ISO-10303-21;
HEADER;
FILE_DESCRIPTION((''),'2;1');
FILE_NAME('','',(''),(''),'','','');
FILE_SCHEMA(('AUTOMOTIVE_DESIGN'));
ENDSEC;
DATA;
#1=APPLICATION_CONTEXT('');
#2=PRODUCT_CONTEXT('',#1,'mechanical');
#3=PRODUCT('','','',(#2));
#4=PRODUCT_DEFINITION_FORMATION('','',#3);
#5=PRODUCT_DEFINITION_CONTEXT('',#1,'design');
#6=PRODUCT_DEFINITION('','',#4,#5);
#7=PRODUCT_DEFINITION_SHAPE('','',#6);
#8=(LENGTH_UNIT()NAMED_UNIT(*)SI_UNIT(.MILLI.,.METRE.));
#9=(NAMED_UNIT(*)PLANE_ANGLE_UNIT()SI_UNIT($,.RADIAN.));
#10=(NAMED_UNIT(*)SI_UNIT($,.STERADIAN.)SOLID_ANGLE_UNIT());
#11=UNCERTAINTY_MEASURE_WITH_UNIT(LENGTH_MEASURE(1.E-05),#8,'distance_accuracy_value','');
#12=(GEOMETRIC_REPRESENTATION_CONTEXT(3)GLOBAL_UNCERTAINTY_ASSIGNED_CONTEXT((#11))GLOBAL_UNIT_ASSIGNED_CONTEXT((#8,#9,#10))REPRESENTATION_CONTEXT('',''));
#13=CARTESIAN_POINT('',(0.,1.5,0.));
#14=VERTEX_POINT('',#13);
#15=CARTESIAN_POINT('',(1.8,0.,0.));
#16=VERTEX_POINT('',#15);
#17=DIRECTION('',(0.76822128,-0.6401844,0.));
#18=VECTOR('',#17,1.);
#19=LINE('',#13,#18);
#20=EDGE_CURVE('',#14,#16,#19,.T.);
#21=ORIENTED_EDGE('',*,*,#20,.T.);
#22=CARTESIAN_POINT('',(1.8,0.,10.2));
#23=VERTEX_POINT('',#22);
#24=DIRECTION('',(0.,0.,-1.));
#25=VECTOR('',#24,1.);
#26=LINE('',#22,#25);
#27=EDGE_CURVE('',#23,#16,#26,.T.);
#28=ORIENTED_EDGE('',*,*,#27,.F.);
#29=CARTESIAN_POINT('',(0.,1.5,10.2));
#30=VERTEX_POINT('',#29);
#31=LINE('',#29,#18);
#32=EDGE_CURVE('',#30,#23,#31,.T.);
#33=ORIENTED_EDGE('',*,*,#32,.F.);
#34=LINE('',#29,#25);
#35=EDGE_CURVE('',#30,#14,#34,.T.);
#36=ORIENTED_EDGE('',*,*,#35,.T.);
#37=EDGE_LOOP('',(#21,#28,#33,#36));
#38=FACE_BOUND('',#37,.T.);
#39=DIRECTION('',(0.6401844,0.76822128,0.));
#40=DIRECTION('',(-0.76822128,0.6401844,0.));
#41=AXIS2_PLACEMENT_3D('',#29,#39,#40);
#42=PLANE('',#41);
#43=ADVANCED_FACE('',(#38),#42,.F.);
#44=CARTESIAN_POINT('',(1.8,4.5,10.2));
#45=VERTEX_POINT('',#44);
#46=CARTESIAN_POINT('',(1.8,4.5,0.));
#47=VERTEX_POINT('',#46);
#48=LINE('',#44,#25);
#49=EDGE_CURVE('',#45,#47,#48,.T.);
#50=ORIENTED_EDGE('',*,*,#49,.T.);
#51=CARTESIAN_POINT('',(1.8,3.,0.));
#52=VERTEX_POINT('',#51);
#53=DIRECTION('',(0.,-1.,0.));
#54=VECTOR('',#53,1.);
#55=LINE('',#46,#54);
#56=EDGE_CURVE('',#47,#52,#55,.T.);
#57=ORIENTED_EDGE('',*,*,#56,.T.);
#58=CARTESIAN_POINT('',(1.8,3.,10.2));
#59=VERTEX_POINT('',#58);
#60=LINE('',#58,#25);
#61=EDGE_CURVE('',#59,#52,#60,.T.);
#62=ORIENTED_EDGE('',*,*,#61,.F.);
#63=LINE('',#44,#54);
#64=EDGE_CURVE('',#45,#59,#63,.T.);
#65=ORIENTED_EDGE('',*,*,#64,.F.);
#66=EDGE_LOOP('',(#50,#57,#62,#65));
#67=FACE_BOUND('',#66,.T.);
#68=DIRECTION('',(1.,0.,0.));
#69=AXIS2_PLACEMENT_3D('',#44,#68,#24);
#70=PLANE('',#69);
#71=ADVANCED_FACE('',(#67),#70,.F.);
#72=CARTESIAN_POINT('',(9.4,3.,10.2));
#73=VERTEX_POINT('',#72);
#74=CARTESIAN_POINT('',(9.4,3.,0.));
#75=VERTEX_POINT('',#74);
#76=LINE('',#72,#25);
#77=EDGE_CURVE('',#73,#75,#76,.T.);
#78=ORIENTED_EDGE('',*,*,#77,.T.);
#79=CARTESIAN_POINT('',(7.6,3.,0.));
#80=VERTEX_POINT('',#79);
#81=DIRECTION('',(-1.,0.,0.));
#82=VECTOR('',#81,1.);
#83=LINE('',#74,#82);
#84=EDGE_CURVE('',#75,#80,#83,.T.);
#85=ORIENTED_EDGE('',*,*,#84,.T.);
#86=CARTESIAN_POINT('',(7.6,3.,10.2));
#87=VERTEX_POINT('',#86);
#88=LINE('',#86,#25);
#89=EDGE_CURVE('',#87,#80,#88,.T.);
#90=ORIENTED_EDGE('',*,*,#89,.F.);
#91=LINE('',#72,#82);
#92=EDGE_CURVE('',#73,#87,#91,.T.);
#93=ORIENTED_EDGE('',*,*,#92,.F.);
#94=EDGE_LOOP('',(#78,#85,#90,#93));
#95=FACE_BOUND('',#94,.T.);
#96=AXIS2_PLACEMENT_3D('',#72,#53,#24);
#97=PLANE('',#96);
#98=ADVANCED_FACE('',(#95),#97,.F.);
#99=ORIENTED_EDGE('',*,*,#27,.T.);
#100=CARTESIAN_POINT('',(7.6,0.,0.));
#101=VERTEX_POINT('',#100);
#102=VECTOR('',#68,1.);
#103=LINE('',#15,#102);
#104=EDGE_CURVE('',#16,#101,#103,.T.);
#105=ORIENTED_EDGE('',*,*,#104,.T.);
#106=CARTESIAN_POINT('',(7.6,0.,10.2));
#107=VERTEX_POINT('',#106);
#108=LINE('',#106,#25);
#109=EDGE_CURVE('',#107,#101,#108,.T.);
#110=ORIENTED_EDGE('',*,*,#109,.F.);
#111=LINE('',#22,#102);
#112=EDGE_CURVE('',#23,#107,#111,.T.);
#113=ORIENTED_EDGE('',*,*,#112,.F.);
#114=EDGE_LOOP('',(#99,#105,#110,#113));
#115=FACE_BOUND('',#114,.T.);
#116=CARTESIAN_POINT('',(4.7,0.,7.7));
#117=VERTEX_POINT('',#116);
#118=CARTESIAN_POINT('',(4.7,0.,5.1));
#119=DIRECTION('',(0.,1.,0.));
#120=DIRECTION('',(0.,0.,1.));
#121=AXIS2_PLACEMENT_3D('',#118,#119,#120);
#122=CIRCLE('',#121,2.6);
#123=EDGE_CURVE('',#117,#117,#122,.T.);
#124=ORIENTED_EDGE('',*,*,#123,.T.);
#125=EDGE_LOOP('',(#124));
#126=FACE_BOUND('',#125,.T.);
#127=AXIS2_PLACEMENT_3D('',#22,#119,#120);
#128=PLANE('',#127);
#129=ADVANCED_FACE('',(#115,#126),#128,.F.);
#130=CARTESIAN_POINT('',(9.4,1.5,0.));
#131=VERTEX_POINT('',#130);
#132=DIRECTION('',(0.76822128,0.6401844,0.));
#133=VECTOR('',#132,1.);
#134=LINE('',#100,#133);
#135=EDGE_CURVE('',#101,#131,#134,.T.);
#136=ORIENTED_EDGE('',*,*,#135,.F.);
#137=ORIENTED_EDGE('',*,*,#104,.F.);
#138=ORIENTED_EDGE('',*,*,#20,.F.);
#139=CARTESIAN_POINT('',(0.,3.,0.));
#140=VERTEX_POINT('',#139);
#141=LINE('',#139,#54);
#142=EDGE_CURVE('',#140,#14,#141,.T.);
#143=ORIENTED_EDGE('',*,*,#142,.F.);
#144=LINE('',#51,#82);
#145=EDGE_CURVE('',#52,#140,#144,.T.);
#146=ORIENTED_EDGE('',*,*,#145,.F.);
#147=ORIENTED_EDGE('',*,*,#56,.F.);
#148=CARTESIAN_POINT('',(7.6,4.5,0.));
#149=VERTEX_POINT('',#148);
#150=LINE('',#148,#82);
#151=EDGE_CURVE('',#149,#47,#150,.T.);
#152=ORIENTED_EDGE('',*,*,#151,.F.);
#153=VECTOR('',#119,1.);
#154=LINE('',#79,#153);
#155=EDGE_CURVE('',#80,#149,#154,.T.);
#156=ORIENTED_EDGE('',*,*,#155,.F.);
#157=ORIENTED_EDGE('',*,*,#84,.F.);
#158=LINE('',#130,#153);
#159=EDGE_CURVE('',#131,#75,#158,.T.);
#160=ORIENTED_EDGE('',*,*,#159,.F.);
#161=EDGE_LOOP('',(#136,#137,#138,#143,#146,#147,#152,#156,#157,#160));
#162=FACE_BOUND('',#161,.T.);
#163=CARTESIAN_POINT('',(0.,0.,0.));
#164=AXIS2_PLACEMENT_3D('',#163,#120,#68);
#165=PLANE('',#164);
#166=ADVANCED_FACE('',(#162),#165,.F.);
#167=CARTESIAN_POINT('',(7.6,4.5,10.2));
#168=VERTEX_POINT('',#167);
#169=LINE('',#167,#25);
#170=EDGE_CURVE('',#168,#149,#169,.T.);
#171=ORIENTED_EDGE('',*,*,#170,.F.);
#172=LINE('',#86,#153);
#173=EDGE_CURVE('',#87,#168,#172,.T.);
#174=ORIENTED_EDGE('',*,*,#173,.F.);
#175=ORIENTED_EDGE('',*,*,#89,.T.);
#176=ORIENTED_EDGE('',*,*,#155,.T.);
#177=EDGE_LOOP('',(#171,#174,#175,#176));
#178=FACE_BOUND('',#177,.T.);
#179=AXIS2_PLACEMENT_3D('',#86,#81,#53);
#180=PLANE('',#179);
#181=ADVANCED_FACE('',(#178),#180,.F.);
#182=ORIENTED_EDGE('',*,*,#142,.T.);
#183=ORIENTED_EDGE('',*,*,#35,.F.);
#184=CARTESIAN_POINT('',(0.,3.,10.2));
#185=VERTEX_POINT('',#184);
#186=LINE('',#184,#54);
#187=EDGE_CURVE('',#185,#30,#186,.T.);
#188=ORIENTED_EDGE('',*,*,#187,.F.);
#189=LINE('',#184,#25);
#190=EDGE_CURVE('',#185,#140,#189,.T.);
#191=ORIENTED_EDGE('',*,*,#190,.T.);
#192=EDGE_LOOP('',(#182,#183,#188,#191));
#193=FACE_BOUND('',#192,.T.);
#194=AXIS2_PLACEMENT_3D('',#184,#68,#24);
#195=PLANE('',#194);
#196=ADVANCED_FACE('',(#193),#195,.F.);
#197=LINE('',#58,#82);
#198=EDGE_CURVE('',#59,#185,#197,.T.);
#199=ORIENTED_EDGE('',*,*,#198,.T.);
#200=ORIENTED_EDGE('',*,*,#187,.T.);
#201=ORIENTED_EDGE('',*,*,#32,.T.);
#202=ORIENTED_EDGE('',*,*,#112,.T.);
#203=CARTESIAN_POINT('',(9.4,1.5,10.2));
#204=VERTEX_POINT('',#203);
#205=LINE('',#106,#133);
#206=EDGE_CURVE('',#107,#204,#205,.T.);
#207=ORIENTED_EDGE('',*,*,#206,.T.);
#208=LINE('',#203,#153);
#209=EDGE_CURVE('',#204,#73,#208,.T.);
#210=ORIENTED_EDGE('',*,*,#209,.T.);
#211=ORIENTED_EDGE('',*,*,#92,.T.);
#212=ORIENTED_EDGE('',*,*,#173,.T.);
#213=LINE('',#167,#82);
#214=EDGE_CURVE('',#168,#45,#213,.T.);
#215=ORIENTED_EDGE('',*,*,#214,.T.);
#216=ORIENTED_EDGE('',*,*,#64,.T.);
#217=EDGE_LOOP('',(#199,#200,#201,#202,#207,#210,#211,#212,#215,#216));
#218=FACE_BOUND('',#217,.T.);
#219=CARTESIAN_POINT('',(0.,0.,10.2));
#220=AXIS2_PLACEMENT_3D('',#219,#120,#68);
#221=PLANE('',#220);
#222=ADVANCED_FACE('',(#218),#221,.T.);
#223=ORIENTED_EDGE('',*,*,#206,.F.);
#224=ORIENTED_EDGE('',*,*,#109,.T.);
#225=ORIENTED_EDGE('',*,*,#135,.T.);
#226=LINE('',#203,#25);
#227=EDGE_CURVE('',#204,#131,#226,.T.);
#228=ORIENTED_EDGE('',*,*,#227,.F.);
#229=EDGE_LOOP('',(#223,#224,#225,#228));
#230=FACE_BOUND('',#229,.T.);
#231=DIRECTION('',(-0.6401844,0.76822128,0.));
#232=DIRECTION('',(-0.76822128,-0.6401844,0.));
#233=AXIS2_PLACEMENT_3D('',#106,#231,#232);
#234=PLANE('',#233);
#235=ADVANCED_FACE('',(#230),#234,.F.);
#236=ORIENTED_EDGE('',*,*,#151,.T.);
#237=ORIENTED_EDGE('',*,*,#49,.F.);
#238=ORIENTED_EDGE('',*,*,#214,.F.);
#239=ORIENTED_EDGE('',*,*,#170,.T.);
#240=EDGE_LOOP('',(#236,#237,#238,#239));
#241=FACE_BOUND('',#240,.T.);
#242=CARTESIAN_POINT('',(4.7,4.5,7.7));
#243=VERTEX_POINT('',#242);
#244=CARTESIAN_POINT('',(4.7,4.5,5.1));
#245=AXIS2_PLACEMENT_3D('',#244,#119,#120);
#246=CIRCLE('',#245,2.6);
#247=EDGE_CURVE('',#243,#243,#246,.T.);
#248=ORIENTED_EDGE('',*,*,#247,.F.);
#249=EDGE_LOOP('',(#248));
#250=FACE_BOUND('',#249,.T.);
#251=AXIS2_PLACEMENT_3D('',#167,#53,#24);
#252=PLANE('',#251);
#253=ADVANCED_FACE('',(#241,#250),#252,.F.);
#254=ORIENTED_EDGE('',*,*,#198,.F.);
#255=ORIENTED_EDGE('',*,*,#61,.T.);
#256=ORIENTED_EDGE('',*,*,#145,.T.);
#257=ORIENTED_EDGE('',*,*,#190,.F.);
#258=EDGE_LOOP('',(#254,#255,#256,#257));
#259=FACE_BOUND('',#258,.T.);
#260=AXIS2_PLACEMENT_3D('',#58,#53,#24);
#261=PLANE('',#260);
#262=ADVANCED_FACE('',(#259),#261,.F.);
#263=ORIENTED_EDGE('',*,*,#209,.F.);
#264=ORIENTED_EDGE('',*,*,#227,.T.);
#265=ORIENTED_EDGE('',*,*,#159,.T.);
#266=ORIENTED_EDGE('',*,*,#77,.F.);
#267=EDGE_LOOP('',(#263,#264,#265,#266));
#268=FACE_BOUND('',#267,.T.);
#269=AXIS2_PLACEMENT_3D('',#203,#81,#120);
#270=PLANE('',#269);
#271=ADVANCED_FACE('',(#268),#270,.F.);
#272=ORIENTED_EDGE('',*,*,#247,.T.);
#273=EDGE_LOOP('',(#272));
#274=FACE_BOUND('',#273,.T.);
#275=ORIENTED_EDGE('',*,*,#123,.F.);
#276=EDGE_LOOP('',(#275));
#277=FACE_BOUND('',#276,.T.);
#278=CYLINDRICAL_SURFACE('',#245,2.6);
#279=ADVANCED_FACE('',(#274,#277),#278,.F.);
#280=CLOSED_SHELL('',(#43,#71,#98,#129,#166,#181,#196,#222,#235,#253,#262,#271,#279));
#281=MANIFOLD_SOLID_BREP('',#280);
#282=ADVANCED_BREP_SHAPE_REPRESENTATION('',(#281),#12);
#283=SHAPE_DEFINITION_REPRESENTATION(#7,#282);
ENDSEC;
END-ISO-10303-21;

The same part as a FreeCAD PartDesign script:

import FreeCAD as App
import Part
import Sketcher
Q = App.Units.Quantity

doc = App.newDocument("Part")
body = doc.addObject("PartDesign::Body", "Body")

# Sketch on XY plane
sketch1 = body.newObject("Sketcher::SketchObject", "Sketch")
sketch1.AttachmentSupport = (doc.getObject("XY_Plane"), [""])
sketch1.MapMode = "FlatFace"
sketch1.addGeometry(Part.LineSegment(App.Vector(0, 3, 0), App.Vector(0, 1.5, 0)), False)
sketch1.addGeometry(Part.LineSegment(App.Vector(0, 1.5, 0), App.Vector(1.8, 0, 0)), False)
sketch1.addGeometry(Part.LineSegment(App.Vector(1.8, 0, 0), App.Vector(7.6, 0, 0)), False)
sketch1.addGeometry(Part.LineSegment(App.Vector(7.6, 0, 0), App.Vector(9.4, 1.5, 0)), False)
sketch1.addGeometry(Part.LineSegment(App.Vector(9.4, 1.5, 0), App.Vector(9.4, 3, 0)), False)
sketch1.addGeometry(Part.LineSegment(App.Vector(9.4, 3, 0), App.Vector(7.6, 3, 0)), False)
sketch1.addGeometry(Part.LineSegment(App.Vector(7.6, 3, 0), App.Vector(7.6, 4.5, 0)), False)
sketch1.addGeometry(Part.LineSegment(App.Vector(7.6, 4.5, 0), App.Vector(1.8, 4.5, 0)), False)
sketch1.addGeometry(Part.LineSegment(App.Vector(1.8, 4.5, 0), App.Vector(1.8, 3, 0)), False)
sketch1.addGeometry(Part.LineSegment(App.Vector(1.8, 3, 0), App.Vector(0, 3, 0)), False)
sketch1.addConstraint(Sketcher.Constraint("Coincident", 0, 2, 1, 1))
sketch1.addConstraint(Sketcher.Constraint("Coincident", 1, 2, 2, 1))
sketch1.addConstraint(Sketcher.Constraint("Coincident", 2, 2, 3, 1))
sketch1.addConstraint(Sketcher.Constraint("Coincident", 3, 2, 4, 1))
sketch1.addConstraint(Sketcher.Constraint("Coincident", 4, 2, 5, 1))
sketch1.addConstraint(Sketcher.Constraint("Coincident", 5, 2, 6, 1))
sketch1.addConstraint(Sketcher.Constraint("Coincident", 6, 2, 7, 1))
sketch1.addConstraint(Sketcher.Constraint("Coincident", 7, 2, 8, 1))
sketch1.addConstraint(Sketcher.Constraint("Coincident", 8, 2, 9, 1))
sketch1.addConstraint(Sketcher.Constraint("Coincident", 9, 2, 0, 1))
sketch1.addConstraint(Sketcher.Constraint("Vertical", 0))
sketch1.addConstraint(Sketcher.Constraint("Horizontal", 2))
sketch1.addConstraint(Sketcher.Constraint("Vertical", 4))
sketch1.addConstraint(Sketcher.Constraint("Horizontal", 5))
sketch1.addConstraint(Sketcher.Constraint("Vertical", 6))
sketch1.addConstraint(Sketcher.Constraint("Horizontal", 7))
sketch1.addConstraint(Sketcher.Constraint("Vertical", 8))
sketch1.addConstraint(Sketcher.Constraint("Horizontal", 9))
sketch1.addConstraint(Sketcher.Constraint("PointOnObject", 0, 2, -2))
sketch1.addConstraint(Sketcher.Constraint("PointOnObject", 1, 2, -1))
sketch1.addConstraint(Sketcher.Constraint("Horizontal", 0, 2, 3, 2))
sketch1.addConstraint(Sketcher.Constraint("Horizontal", 5, 2, 8, 2))
sketch1.addConstraint(Sketcher.Constraint("Vertical", 2, 2, 5, 2))
sketch1.addConstraint(Sketcher.Constraint("Vertical", 1, 2, 7, 2))
sketch1.addConstraint(Sketcher.Constraint("Equal", 5, 9))
sketch1.addConstraint(Sketcher.Constraint("Equal", 4, 6))
sketch1.addConstraint(Sketcher.Constraint("DistanceX", 2, 1, 2, 2, Q("5.8 mm")))
sketch1.addConstraint(Sketcher.Constraint("DistanceX", 5, 2, 5, 1, Q("1.8 mm")))
sketch1.addConstraint(Sketcher.Constraint("DistanceY", 0, 2, 0, 1, Q("1.5 mm")))
sketch1.addConstraint(Sketcher.Constraint("DistanceY", -1, 1, 4, 2, Q("3 mm")))
pad1 = body.newObject("PartDesign::Pad", "Pad")
pad1.Profile = sketch1
pad1.Length = 10.2

# Sketch on XZ plane
sketch2 = body.newObject("Sketcher::SketchObject", "Sketch001")
sketch2.AttachmentSupport = (doc.getObject("XZ_Plane"), [""])
sketch2.MapMode = "FlatFace"
sketch2.AttachmentOffset = App.Placement(App.Vector(0, 0, -4.5), App.Rotation())
sketch2.addGeometry(Part.Circle(App.Vector(4.7, 5.1, 0), App.Vector(0, 0, 1), 2.6), False)
sketch2.addConstraint(Sketcher.Constraint("Diameter", 0, Q("5.2 mm")))
sketch2.addConstraint(Sketcher.Constraint("DistanceX", -1, 1, 0, 3, Q("4.7 mm")))
sketch2.addConstraint(Sketcher.Constraint("DistanceY", -1, 1, 0, 3, Q("5.1 mm")))
doc.recompute()
hole = body.newObject("PartDesign::Hole", "Hole")
hole.Profile = sketch2
hole.ThreadType = "None"
hole.Diameter = 5.2
hole.DepthType = "ThroughAll"
hole.Reversed = True

doc.recompute()
